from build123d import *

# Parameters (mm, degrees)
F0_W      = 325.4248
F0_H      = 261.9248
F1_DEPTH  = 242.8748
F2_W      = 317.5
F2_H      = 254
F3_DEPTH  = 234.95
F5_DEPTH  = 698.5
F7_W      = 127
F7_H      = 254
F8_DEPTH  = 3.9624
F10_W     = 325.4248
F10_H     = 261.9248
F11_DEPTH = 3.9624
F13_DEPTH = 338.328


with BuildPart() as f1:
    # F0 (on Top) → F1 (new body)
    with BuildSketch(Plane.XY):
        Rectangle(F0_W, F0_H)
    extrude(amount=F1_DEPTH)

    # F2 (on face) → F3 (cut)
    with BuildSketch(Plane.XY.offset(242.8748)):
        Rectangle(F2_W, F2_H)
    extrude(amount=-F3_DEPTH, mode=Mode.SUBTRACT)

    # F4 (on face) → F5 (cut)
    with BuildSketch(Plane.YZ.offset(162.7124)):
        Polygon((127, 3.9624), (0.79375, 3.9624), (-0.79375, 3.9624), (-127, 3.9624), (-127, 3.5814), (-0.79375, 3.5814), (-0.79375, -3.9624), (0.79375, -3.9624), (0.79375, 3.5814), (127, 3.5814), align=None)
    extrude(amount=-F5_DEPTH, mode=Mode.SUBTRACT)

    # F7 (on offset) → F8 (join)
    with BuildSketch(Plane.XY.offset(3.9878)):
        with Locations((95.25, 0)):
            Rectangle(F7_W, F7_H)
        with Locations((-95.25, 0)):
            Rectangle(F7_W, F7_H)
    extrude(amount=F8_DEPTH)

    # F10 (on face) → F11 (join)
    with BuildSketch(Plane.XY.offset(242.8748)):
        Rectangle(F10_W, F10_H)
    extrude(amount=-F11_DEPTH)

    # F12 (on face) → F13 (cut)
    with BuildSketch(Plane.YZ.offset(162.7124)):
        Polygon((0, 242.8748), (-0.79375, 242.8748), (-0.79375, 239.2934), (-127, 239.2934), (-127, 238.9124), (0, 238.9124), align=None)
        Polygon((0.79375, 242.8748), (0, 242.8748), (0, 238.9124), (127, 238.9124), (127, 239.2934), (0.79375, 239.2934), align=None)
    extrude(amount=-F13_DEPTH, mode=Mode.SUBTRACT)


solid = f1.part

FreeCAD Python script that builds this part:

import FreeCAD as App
import Part
import Sketcher
from FreeCAD import Vector
Q = App.Units.Quantity

doc = App.newDocument("Part")
body = doc.addObject("PartDesign::Body", "Body")

sketch1 = doc.addObject("Sketcher::SketchObject", "Sketch")
body.addObject(sketch1)
sketch1.AttachmentSupport = (doc.XY_Plane, [""])
sketch1.MapMode = "FlatFace"
sketch1.addGeometry([
    Part.LineSegment(Vector(-163, 131, 0), Vector(-163, -131, 0)),
    Part.LineSegment(Vector(-163, -131, 0), Vector(163, -131, 0)),
    Part.LineSegment(Vector(163, -131, 0), Vector(163, 131, 0)),
    Part.LineSegment(Vector(163, 131, 0), Vector(-163, 131, 0)),
], False)
sketch1.addConstraint([
    Sketcher.Constraint("Coincident", 0, 2, 1, 1),
    Sketcher.Constraint("Coincident", 1, 2, 2, 1),
    Sketcher.Constraint("Coincident", 2, 2, 3, 1),
    Sketcher.Constraint("Coincident", 3, 2, 0, 1),
    Sketcher.Constraint("Vertical", 0),
    Sketcher.Constraint("Horizontal", 1),
    Sketcher.Constraint("Vertical", 2),
    Sketcher.Constraint("Horizontal", 3),
    Sketcher.Constraint("Symmetric", 0, 2, 2, 2, -1, 1),
    Sketcher.Constraint("DistanceX", 1, 1, 1, 2, Q("12.812 in")),
    Sketcher.Constraint("DistanceY", 0, 2, 0, 1, Q("10.312 in")),
])
pad1 = doc.addObject("PartDesign::Pad", "Pad")
body.addObject(pad1)
pad1.Profile = sketch1
pad1.Length = Q("9.562 in")

sketch2 = doc.addObject("Sketcher::SketchObject", "Sketch001")
body.addObject(sketch2)
sketch2.AttachmentSupport = (doc.XY_Plane, [""])
sketch2.MapMode = "FlatFace"
sketch2.AttachmentOffset = App.Placement(Vector(0, 0, 9.562 * 25.4), App.Rotation())
sketch2.addGeometry([
    Part.LineSegment(Vector(-159, 127, 0), Vector(-159, -127, 0)),
    Part.LineSegment(Vector(-159, -127, 0), Vector(159, -127, 0)),
    Part.LineSegment(Vector(159, -127, 0), Vector(159, 127, 0)),
    Part.LineSegment(Vector(159, 127, 0), Vector(-159, 127, 0)),
], False)
sketch2.addConstraint([
    Sketcher.Constraint("Coincident", 0, 2, 1, 1),
    Sketcher.Constraint("Coincident", 1, 2, 2, 1),
    Sketcher.Constraint("Coincident", 2, 2, 3, 1),
    Sketcher.Constraint("Coincident", 3, 2, 0, 1),
    Sketcher.Constraint("Vertical", 0),
    Sketcher.Constraint("Horizontal", 1),
    Sketcher.Constraint("Vertical", 2),
    Sketcher.Constraint("Horizontal", 3),
    Sketcher.Constraint("Symmetric", 0, 2, 2, 2, -1, 1),
    Sketcher.Constraint("DistanceY", 0, 2, 0, 1, Q("10 in")),
    Sketcher.Constraint("DistanceX", 1, 1, 1, 2, Q("12.5 in")),
])
pocket1 = doc.addObject("PartDesign::Pocket", "Pocket")
body.addObject(pocket1)
pocket1.Profile = sketch2
pocket1.Length = Q("9.25 in")

sketch3 = doc.addObject("Sketcher::SketchObject", "Sketch002")
body.addObject(sketch3)
sketch3.AttachmentSupport = (doc.YZ_Plane, [""])
sketch3.MapMode = "FlatFace"
sketch3.AttachmentOffset = App.Placement(Vector(0, 0, 6.406 * 25.4), App.Rotation())
sketch3.addGeometry([
    Part.LineSegment(Vector(127, 3.96, 0), Vector(-127, 3.96, 0)),
    Part.LineSegment(Vector(-127, 3.96, 0), Vector(-127, 3.58, 0)),
    Part.LineSegment(Vector(-127, 3.58, 0), Vector(-0.79, 3.58, 0)),
    Part.LineSegment(Vector(-0.79, 3.58, 0), Vector(-0.79, -3.96, 0)),
    Part.LineSegment(Vector(-0.79, -3.96, 0), Vector(0.79, -3.96, 0)),
    Part.LineSegment(Vector(0.79, -3.96, 0), Vector(0.79, 3.58, 0)),
    Part.LineSegment(Vector(0.79, 3.58, 0), Vector(127, 3.58, 0)),
    Part.LineSegment(Vector(127, 3.58, 0), Vector(127, 3.96, 0)),
], False)
sketch3.addConstraint([
    Sketcher.Constraint("Coincident", 0, 2, 1, 1),
    Sketcher.Constraint("Coincident", 1, 2, 2, 1),
    Sketcher.Constraint("Coincident", 2, 2, 3, 1),
    Sketcher.Constraint("Coincident", 3, 2, 4, 1),
    Sketcher.Constraint("Coincident", 4, 2, 5, 1),
    Sketcher.Constraint("Coincident", 5, 2, 6, 1),
    Sketcher.Constraint("Coincident", 6, 2, 7, 1),
    Sketcher.Constraint("Coincident", 7, 2, 0, 1),
    Sketcher.Constraint("Horizontal", 0),
    Sketcher.Constraint("Vertical", 1),
    Sketcher.Constraint("Horizontal", 2),
    Sketcher.Constraint("Vertical", 3),
    Sketcher.Constraint("Horizontal", 4),
    Sketcher.Constraint("Vertical", 5),
    Sketcher.Constraint("Horizontal", 6),
    Sketcher.Constraint("Vertical", 7),
    Sketcher.Constraint("Symmetric", 2, 2, 5, 2, -2),
    Sketcher.Constraint("Equal", 2, 6),
    Sketcher.Constraint("DistanceX", 0, 2, 0, 1, Q("10 in")),
    Sketcher.Constraint("DistanceX", 2, 1, 2, 2, Q("4.96875 in")),
    Sketcher.Constraint("DistanceY", 1, 2, 1, 1, Q("0.015 in")),
    Sketcher.Constraint("DistanceY", 3, 2, 3, 1, Q("0.297 in")),
    Sketcher.Constraint("DistanceY", -1, 1, 0, 2, Q("0.156 in")),
])
pocket2 = doc.addObject("PartDesign::Pocket", "Pocket001")
body.addObject(pocket2)
pocket2.Profile = sketch3
pocket2.Length = Q("27.5 in")

sketch4 = doc.addObject("Sketcher::SketchObject", "Sketch003")
body.addObject(sketch4)
sketch4.AttachmentSupport = (doc.XY_Plane, [""])
sketch4.MapMode = "FlatFace"
sketch4.AttachmentOffset = App.Placement(Vector(0, 0, 0.157 * 25.4), App.Rotation())
sketch4.addGeometry([
    Part.LineSegment(Vector(32, 127, 0), Vector(32, -127, 0)),
    Part.LineSegment(Vector(32, -127, 0), Vector(159, -127, 0)),
    Part.LineSegment(Vector(159, -127, 0), Vector(159, 127, 0)),
    Part.LineSegment(Vector(159, 127, 0), Vector(32, 127, 0)),
    Part.LineSegment(Vector(-159, 127, 0), Vector(-159, -127, 0)),
    Part.LineSegment(Vector(-159, -127, 0), Vector(-32, -127, 0)),
    Part.LineSegment(Vector(-32, -127, 0), Vector(-32, 127, 0)),
    Part.LineSegment(Vector(-32, 127, 0), Vector(-159, 127, 0)),
], False)
sketch4.addConstraint([
    Sketcher.Constraint("Coincident", 0, 2, 1, 1),
    Sketcher.Constraint("Coincident", 1, 2, 2, 1),
    Sketcher.Constraint("Coincident", 2, 2, 3, 1),
    Sketcher.Constraint("Coincident", 3, 2, 0, 1),
    Sketcher.Constraint("Coincident", 4, 2, 5, 1),
    Sketcher.Constraint("Coincident", 5, 2, 6, 1),
    Sketcher.Constraint("Coincident", 6, 2, 7, 1),
    Sketcher.Constraint("Coincident", 7, 2, 4, 1),
    Sketcher.Constraint("Vertical", 0),
    Sketcher.Constraint("Horizontal", 1),
    Sketcher.Constraint("Vertical", 2),
    Sketcher.Constraint("Horizontal", 3),
    Sketcher.Constraint("Vertical", 4),
    Sketcher.Constraint("Horizontal", 5),
    Sketcher.Constraint("Vertical", 6),
    Sketcher.Constraint("Horizontal", 7),
    Sketcher.Constraint("Symmetric", 2, 2, 4, 2, -1, 1),
    Sketcher.Constraint("Symmetric", 0, 2, 6, 2, -1, 1),
    Sketcher.Constraint("Horizontal", 1, 2, 4, 2),
    Sketcher.Constraint("DistanceX", 1, 1, 1, 2, Q("5 in")),
    Sketcher.Constraint("DistanceY", 0, 2, 0, 1, Q("10 in")),
    Sketcher.Constraint("DistanceX", 4, 2, 0, 2, Q("7.5 in")),
])
pad2 = doc.addObject("PartDesign::Pad", "Pad001")
body.addObject(pad2)
pad2.Profile = sketch4
pad2.Length = Q("0.156 in")

sketch5 = doc.addObject("Sketcher::SketchObject", "Sketch004")
body.addObject(sketch5)
sketch5.AttachmentSupport = (doc.XY_Plane, [""])
sketch5.MapMode = "FlatFace"
sketch5.AttachmentOffset = App.Placement(Vector(0, 0, 9.562 * 25.4), App.Rotation())
sketch5.addGeometry([
    Part.LineSegment(Vector(-163, 131, 0), Vector(-163, -131, 0)),
    Part.LineSegment(Vector(-163, -131, 0), Vector(163, -131, 0)),
    Part.LineSegment(Vector(163, -131, 0), Vector(163, 131, 0)),
    Part.LineSegment(Vector(163, 131, 0), Vector(-163, 131, 0)),
], False)
sketch5.addConstraint([
    Sketcher.Constraint("Coincident", 0, 2, 1, 1),
    Sketcher.Constraint("Coincident", 1, 2, 2, 1),
    Sketcher.Constraint("Coincident", 2, 2, 3, 1),
    Sketcher.Constraint("Coincident", 3, 2, 0, 1),
    Sketcher.Constraint("Vertical", 0),
    Sketcher.Constraint("Horizontal", 1),
    Sketcher.Constraint("Vertical", 2),
    Sketcher.Constraint("Horizontal", 3),
    Sketcher.Constraint("Symmetric", 0, 2, 2, 2, -1, 1),
    Sketcher.Constraint("DistanceX", 1, 1, 1, 2, Q("12.812 in")),
    Sketcher.Constraint("DistanceY", 0, 2, 0, 1, Q("10.312 in")),
])
pad3 = doc.addObject("PartDesign::Pad", "Pad002")
body.addObject(pad3)
pad3.Profile = sketch5
pad3.Length = Q("0.156 in")
pad3.Reversed = True

sketch6 = doc.addObject("Sketcher::SketchObject", "Sketch005")
body.addObject(sketch6)
sketch6.AttachmentSupport = (doc.YZ_Plane, [""])
sketch6.MapMode = "FlatFace"
sketch6.AttachmentOffset = App.Placement(Vector(0, 0, 6.406 * 25.4), App.Rotation())
sketch6.addGeometry([
    Part.LineSegment(Vector(-0.79, 242.87, 0), Vector(-0.79, 239.29, 0)),
    Part.LineSegment(Vector(-0.79, 239.29, 0), Vector(-127, 239.29, 0)),
    Part.LineSegment(Vector(-127, 239.29, 0), Vector(-127, 238.91, 0)),
    Part.LineSegment(Vector(-127, 238.91, 0), Vector(127, 238.91, 0)),
    Part.LineSegment(Vector(127, 238.91, 0), Vector(127, 239.29, 0)),
    Part.LineSegment(Vector(127, 239.29, 0), Vector(0.79, 239.29, 0)),
    Part.LineSegment(Vector(0.79, 239.29, 0), Vector(0.79, 242.87, 0)),
    Part.LineSegment(Vector(0.79, 242.87, 0), Vector(-0.79, 242.87, 0)),
], False)
sketch6.addConstraint([
    Sketcher.Constraint("Coincident", 0, 2, 1, 1),
    Sketcher.Constraint("Coincident", 1, 2, 2, 1),
    Sketcher.Constraint("Coincident", 2, 2, 3, 1),
    Sketcher.Constraint("Coincident", 3, 2, 4, 1),
    Sketcher.Constraint("Coincident", 4, 2, 5, 1),
    Sketcher.Constraint("Coincident", 5, 2, 6, 1),
    Sketcher.Constraint("Coincident", 6, 2, 7, 1),
    Sketcher.Constraint("Coincident", 7, 2, 0, 1),
    Sketcher.Constraint("Vertical", 0),
    Sketcher.Constraint("Horizontal", 1),
    Sketcher.Constraint("Vertical", 2),
    Sketcher.Constraint("Horizontal", 3),
    Sketcher.Constraint("Vertical", 4),
    Sketcher.Constraint("Horizontal", 5),
    Sketcher.Constraint("Vertical", 6),
    Sketcher.Constraint("Horizontal", 7),
    Sketcher.Constraint("Symmetric", 1, 2, 4, 2, -2),
    Sketcher.Constraint("Equal", 1, 5),
    Sketcher.Constraint("DistanceX", 3, 1, 3, 2, Q("10 in")),
    Sketcher.Constraint("DistanceX", 1, 2, 1, 1, Q("4.96875 in")),
    Sketcher.Constraint("DistanceY", 0, 2, 0, 1, Q("0.141 in")),
    Sketcher.Constraint("DistanceY", 2, 2, 2, 1, Q("0.015 in")),
    Sketcher.Constraint("DistanceY", -1, 1, 0, 2, Q("9.421 in")),
])
pocket3 = doc.addObject("PartDesign::Pocket", "Pocket002")
body.addObject(pocket3)
pocket3.Profile = sketch6
pocket3.Length = Q("13.32 in")

doc.recompute()
